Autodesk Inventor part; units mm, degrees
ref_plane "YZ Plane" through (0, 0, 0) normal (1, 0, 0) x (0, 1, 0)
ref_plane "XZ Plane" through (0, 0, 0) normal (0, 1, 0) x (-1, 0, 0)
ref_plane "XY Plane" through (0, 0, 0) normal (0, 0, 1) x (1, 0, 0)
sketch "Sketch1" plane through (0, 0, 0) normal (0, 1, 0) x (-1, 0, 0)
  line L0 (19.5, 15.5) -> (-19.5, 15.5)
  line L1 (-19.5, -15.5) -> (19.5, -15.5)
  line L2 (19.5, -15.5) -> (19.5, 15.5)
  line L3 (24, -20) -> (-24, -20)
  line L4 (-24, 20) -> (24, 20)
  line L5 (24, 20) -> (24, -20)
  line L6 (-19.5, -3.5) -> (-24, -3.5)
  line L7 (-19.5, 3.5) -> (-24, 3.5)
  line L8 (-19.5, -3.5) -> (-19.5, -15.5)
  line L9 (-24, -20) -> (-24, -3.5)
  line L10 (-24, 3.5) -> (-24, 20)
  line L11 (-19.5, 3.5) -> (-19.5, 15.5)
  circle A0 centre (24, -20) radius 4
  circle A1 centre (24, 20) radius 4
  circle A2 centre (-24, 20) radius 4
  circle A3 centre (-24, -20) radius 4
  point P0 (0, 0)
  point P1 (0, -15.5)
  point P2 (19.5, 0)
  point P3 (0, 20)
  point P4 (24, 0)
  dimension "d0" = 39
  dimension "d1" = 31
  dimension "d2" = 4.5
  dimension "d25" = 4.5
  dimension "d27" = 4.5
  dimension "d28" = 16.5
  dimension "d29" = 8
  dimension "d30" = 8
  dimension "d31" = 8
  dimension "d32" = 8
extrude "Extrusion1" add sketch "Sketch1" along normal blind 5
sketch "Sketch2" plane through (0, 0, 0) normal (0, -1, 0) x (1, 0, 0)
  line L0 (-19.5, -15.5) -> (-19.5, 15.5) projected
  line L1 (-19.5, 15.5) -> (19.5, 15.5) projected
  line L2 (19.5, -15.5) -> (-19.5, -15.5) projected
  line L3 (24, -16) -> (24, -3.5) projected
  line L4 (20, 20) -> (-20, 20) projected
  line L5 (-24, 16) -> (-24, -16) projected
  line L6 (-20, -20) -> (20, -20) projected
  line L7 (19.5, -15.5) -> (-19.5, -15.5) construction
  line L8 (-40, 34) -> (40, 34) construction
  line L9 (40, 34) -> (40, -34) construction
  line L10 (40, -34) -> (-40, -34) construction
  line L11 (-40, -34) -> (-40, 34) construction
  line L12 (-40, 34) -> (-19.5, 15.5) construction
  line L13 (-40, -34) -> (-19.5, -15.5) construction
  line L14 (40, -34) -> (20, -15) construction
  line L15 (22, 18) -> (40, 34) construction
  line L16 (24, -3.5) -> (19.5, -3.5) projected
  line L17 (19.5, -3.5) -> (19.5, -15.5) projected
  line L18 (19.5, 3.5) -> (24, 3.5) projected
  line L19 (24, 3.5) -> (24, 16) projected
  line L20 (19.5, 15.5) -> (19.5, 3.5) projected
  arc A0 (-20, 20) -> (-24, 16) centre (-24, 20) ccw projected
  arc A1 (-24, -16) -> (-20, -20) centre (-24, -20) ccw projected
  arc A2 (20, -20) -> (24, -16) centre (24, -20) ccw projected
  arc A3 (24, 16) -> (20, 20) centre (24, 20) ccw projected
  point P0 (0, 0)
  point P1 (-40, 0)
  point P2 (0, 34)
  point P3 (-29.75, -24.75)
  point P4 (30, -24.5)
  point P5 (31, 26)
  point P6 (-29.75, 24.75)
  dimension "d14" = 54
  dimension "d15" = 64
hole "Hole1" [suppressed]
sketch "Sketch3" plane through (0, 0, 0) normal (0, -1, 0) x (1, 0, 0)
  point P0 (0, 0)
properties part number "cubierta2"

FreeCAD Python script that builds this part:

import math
import FreeCAD as App
import Part
import Sketcher
from FreeCAD import Vector

doc = App.newDocument("Part")
body = doc.addObject("PartDesign::Body", "Body")

sketch1 = body.newObject("Sketcher::SketchObject", "Sketch")
sketch1.AttachmentSupport = (doc.getObject("XZ_Plane"), [""])
sketch1.MapMode = "FlatFace"
sketch1.addGeometry(Part.LineSegment(Vector(19.5, 15.5, 0), Vector(-19.5, 15.5, 0)), False)
sketch1.addGeometry(Part.LineSegment(Vector(-19.5, 15.5, 0), Vector(-19.5, -15.5, 0)), False)
sketch1.addGeometry(Part.LineSegment(Vector(-19.5, -15.5, 0), Vector(19.5, -15.5, 0)), False)
sketch1.addGeometry(Part.LineSegment(Vector(19.5, -15.5, 0), Vector(19.5, -3.5, 0)), False)
sketch1.addGeometry(Part.LineSegment(Vector(19.5, -3.5, 0), Vector(24, -3.5, 0)), False)
sketch1.addGeometry(Part.LineSegment(Vector(24, -3.5, 0), Vector(24, -16, 0)), False)
sketch1.addGeometry(Part.ArcOfCircle(Part.Circle(Vector(24, -20, 0), Vector(0, 0, 1), 4), math.radians(180), math.radians(450)), False)
sketch1.addGeometry(Part.LineSegment(Vector(20, -20, 0), Vector(-20, -20, 0)), False)
sketch1.addGeometry(Part.ArcOfCircle(Part.Circle(Vector(-24, -20, 0), Vector(0, 0, 1), 4), math.radians(90), math.radians(360)), False)
sketch1.addGeometry(Part.LineSegment(Vector(-24, -16, 0), Vector(-24, 16, 0)), False)
sketch1.addGeometry(Part.ArcOfCircle(Part.Circle(Vector(-24, 20, 0), Vector(0, 0, 1), 4), math.radians(0), math.radians(270)), False)
sketch1.addGeometry(Part.LineSegment(Vector(-20, 20, 0), Vector(20, 20, 0)), False)
sketch1.addGeometry(Part.ArcOfCircle(Part.Circle(Vector(24, 20, 0), Vector(0, 0, 1), 4), math.radians(-90), math.radians(180)), False)
sketch1.addGeometry(Part.LineSegment(Vector(24, 16, 0), Vector(24, 3.5, 0)), False)
sketch1.addGeometry(Part.LineSegment(Vector(24, 3.5, 0), Vector(19.5, 3.5, 0)), False)
sketch1.addGeometry(Part.LineSegment(Vector(19.5, 3.5, 0), Vector(19.5, 15.5, 0)), False)
sketch1.addConstraint(Sketcher.Constraint("Coincident", 0, 2, 1, 1))
sketch1.addConstraint(Sketcher.Constraint("Coincident", 1, 2, 2, 1))
sketch1.addConstraint(Sketcher.Constraint("Coincident", 2, 2, 3, 1))
sketch1.addConstraint(Sketcher.Constraint("Coincident", 3, 2, 4, 1))
sketch1.addConstraint(Sketcher.Constraint("Coincident", 4, 2, 5, 1))
sketch1.addConstraint(Sketcher.Constraint("Coincident", 5, 2, 6, 2))
sketch1.addConstraint(Sketcher.Constraint("Coincident", 6, 1, 7, 1))
sketch1.addConstraint(Sketcher.Constraint("Coincident", 7, 2, 8, 2))
sketch1.addConstraint(Sketcher.Constraint("Coincident", 8, 1, 9, 1))
sketch1.addConstraint(Sketcher.Constraint("Coincident", 9, 2, 10, 2))
sketch1.addConstraint(Sketcher.Constraint("Coincident", 10, 1, 11, 1))
sketch1.addConstraint(Sketcher.Constraint("Coincident", 11, 2, 12, 2))
sketch1.addConstraint(Sketcher.Constraint("Coincident", 12, 1, 13, 1))
sketch1.addConstraint(Sketcher.Constraint("Coincident", 13, 2, 14, 1))
sketch1.addConstraint(Sketcher.Constraint("Coincident", 14, 2, 15, 1))
sketch1.addConstraint(Sketcher.Constraint("Coincident", 15, 2, 0, 1))
sketch1.addConstraint(Sketcher.Constraint("Horizontal", 0))
sketch1.addConstraint(Sketcher.Constraint("Vertical", 1))
sketch1.addConstraint(Sketcher.Constraint("Horizontal", 2))
sketch1.addConstraint(Sketcher.Constraint("Vertical", 3))
sketch1.addConstraint(Sketcher.Constraint("Horizontal", 4))
sketch1.addConstraint(Sketcher.Constraint("Vertical", 5))
sketch1.addConstraint(Sketcher.Constraint("Horizontal", 7))
sketch1.addConstraint(Sketcher.Constraint("Vertical", 9))
sketch1.addConstraint(Sketcher.Constraint("Horizontal", 11))
sketch1.addConstraint(Sketcher.Constraint("Vertical", 13))
sketch1.addConstraint(Sketcher.Constraint("Horizontal", 14))
sketch1.addConstraint(Sketcher.Constraint("Vertical", 15))
sketch1.addConstraint(Sketcher.Constraint("Equal", 6, 8))
sketch1.addConstraint(Sketcher.Constraint("Equal", 8, 10))
sketch1.addConstraint(Sketcher.Constraint("Equal", 10, 12))
sketch1.addConstraint(Sketcher.Constraint("Symmetric", 6, 3, 10, 3, -1, 1))
sketch1.addConstraint(Sketcher.Constraint("Symmetric", 8, 3, 12, 3, -1, 1))
sketch1.addConstraint(Sketcher.Constraint("Symmetric", 0, 2, 2, 2, -1, 1))
sketch1.addConstraint(Sketcher.Constraint("Symmetric", 6, 3, 8, 3, -2))
sketch1.addConstraint(Sketcher.Constraint("Symmetric", 4, 2, 13, 2, -1))
sketch1.addConstraint(Sketcher.Constraint("Horizontal", 8, 3, 6, 1))
sketch1.addConstraint(Sketcher.Constraint("Horizontal", 12, 3, 10, 1))
sketch1.addConstraint(Sketcher.Constraint("Vertical", 12, 3, 4, 2))
sketch1.addConstraint(Sketcher.Constraint("Vertical", 10, 3, 8, 1))
sketch1.addConstraint(Sketcher.Constraint("Vertical", 3, 2, 14, 2))
sketch1.addConstraint(Sketcher.Constraint("Radius", 6, 4.0))
sketch1.addConstraint(Sketcher.Constraint("DistanceX", 0, 2, 0, 1, 39.0))
sketch1.addConstraint(Sketcher.Constraint("DistanceY", 1, 2, 1, 1, 31.0))
sketch1.addConstraint(Sketcher.Constraint("DistanceX", 4, 1, 4, 2, 4.5))
sketch1.addConstraint(Sketcher.Constraint("DistanceY", 0, 2, 10, 3, 4.5))
sketch1.addConstraint(Sketcher.Constraint("DistanceY", 6, 3, 3, 2, 16.5))
pad1 = body.newObject("PartDesign::Pad", "Pad")
pad1.Profile = sketch1
pad1.Length = 5
pad1.Reversed = True

doc.recompute()
